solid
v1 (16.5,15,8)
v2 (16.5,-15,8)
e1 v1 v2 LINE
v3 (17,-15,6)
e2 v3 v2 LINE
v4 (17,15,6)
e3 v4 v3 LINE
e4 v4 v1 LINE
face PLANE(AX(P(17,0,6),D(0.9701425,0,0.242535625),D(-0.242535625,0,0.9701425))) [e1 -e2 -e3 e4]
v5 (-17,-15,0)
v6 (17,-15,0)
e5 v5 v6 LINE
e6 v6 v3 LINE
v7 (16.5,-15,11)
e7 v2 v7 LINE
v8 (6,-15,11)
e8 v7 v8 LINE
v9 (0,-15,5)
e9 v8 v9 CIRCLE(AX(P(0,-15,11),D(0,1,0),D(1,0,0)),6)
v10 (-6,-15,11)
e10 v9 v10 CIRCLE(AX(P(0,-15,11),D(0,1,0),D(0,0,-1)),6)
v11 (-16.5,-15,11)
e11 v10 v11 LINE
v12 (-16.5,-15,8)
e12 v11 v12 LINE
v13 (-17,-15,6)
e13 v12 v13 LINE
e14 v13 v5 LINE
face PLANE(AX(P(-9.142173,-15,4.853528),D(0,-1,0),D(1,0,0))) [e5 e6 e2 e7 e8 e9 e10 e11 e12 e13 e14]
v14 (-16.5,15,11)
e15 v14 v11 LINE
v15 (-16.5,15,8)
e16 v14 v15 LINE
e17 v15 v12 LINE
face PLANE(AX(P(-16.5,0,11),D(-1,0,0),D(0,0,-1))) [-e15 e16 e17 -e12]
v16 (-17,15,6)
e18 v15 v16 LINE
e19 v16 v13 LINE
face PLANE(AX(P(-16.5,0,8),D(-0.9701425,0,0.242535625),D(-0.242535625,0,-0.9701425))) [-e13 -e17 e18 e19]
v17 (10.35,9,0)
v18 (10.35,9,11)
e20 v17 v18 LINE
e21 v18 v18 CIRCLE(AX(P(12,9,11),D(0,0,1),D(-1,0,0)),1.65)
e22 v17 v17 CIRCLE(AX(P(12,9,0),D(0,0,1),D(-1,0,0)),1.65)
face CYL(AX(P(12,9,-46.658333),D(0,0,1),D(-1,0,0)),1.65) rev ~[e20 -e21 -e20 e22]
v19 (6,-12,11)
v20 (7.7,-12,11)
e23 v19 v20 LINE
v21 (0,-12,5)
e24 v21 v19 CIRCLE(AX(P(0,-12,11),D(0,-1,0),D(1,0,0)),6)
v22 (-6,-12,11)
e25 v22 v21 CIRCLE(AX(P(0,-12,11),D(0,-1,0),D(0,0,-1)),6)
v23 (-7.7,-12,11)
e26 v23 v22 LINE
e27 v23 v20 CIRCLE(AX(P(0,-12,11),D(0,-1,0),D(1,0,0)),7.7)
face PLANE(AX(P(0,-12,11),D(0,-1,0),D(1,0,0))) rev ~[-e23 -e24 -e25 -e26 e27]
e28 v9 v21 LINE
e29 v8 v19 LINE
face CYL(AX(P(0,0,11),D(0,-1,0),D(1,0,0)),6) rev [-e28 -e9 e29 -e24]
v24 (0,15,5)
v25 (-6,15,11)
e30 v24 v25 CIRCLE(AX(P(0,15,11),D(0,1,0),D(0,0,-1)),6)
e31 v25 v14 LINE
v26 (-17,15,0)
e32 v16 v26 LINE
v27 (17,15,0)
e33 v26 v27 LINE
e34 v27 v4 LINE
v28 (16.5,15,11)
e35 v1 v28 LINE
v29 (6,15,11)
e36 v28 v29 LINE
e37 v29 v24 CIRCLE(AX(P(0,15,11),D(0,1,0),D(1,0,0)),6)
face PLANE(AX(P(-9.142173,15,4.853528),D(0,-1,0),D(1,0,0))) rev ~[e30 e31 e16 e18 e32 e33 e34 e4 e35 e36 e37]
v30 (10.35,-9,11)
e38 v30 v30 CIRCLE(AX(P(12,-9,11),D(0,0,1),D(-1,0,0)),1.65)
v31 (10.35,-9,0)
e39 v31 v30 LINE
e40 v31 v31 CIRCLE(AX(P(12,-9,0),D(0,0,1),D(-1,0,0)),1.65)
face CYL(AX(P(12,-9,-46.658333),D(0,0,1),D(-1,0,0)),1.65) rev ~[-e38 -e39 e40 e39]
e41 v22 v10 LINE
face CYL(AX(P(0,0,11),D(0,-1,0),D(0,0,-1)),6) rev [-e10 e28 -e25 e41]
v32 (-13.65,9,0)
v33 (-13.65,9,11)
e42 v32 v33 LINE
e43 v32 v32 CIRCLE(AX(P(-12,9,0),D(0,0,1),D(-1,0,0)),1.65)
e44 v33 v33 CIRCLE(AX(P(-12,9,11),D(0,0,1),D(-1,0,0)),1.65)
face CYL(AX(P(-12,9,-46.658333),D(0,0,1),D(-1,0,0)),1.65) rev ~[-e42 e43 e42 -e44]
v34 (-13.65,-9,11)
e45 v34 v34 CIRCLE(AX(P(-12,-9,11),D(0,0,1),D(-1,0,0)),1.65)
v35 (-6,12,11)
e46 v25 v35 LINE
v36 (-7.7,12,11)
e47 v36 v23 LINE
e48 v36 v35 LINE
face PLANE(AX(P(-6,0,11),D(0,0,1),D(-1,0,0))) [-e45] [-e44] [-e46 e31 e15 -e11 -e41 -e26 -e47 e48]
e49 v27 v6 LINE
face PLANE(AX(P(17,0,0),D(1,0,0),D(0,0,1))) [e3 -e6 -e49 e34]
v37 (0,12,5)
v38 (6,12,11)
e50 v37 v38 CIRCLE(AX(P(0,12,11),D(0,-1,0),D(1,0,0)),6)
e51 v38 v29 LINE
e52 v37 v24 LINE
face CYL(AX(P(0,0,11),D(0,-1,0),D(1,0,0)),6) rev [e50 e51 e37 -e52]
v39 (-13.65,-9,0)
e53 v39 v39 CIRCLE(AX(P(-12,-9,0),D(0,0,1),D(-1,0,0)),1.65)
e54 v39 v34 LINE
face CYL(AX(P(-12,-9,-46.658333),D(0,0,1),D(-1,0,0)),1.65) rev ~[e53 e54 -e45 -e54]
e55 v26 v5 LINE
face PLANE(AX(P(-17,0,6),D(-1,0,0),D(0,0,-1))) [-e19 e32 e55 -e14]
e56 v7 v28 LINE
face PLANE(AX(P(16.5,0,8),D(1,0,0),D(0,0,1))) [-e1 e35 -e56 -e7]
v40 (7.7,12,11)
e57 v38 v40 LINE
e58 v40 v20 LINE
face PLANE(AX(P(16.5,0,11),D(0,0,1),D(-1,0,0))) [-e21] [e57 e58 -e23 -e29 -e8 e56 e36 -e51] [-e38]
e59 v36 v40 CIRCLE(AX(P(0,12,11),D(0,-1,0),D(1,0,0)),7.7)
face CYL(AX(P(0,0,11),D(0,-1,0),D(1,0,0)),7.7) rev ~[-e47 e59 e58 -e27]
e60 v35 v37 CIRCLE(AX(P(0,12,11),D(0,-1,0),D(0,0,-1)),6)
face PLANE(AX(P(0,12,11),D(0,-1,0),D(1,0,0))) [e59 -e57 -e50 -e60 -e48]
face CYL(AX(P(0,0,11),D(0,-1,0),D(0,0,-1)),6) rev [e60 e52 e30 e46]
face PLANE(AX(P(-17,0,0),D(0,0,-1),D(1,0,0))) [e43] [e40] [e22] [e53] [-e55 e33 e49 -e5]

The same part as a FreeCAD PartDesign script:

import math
import FreeCAD as App
import Part
import Sketcher
Q = App.Units.Quantity

doc = App.newDocument("Part")
body = doc.addObject("PartDesign::Body", "Body")

# Sketch on XZ plane
sketch1 = body.newObject("Sketcher::SketchObject", "Sketch")
sketch1.AttachmentSupport = (doc.getObject("XZ_Plane"), [""])
sketch1.MapMode = "FlatFace"
sketch1.addGeometry([
    Part.ArcOfCircle(Part.Circle(App.Vector(0, 11, 0), App.Vector(0, 0, 1), 6), math.radians(180), math.radians(270)),  # 0
    Part.LineSegment(App.Vector(-6, 11, 0), App.Vector(-16.5, 11, 0)),  # 1
    Part.LineSegment(App.Vector(-16.5, 11, 0), App.Vector(-16.5, 8, 0)),  # 2
    Part.LineSegment(App.Vector(-16.5, 8, 0), App.Vector(-17, 6, 0)),  # 3
    Part.LineSegment(App.Vector(-17, 6, 0), App.Vector(-17, 0, 0)),  # 4
    Part.LineSegment(App.Vector(-17, 0, 0), App.Vector(17, 0, 0)),  # 5
    Part.LineSegment(App.Vector(17, 0, 0), App.Vector(17, 6, 0)),  # 6
    Part.LineSegment(App.Vector(17, 6, 0), App.Vector(16.5, 8, 0)),  # 7
    Part.LineSegment(App.Vector(16.5, 8, 0), App.Vector(16.5, 11, 0)),  # 8
    Part.LineSegment(App.Vector(16.5, 11, 0), App.Vector(6, 11, 0)),  # 9
    Part.ArcOfCircle(Part.Circle(App.Vector(0, 11, 0), App.Vector(0, 0, 1), 6), math.radians(-90), math.radians(0)),  # 10
], False)
sketch1.addConstraint([
    Sketcher.Constraint("Coincident", 0, 1, 1, 1),
    Sketcher.Constraint("Coincident", 1, 2, 2, 1),
    Sketcher.Constraint("Coincident", 2, 2, 3, 1),
    Sketcher.Constraint("Coincident", 3, 2, 4, 1),
    Sketcher.Constraint("Coincident", 4, 2, 5, 1),
    Sketcher.Constraint("Coincident", 5, 2, 6, 1),
    Sketcher.Constraint("Coincident", 6, 2, 7, 1),
    Sketcher.Constraint("Coincident", 7, 2, 8, 1),
    Sketcher.Constraint("Coincident", 8, 2, 9, 1),
    Sketcher.Constraint("Coincident", 9, 2, 10, 2),
    Sketcher.Constraint("Tangent", 10, 1, 0, 2),
    Sketcher.Constraint("Horizontal", 1),
    Sketcher.Constraint("Vertical", 2),
    Sketcher.Constraint("Vertical", 4),
    Sketcher.Constraint("Horizontal", 5),
    Sketcher.Constraint("Vertical", 6),
    Sketcher.Constraint("Vertical", 8),
    Sketcher.Constraint("Horizontal", 9),
    Sketcher.Constraint("Equal", 0, 10),
    Sketcher.Constraint("Symmetric", 4, 2, 5, 2, -1, 1),
    Sketcher.Constraint("Symmetric", 2, 2, 7, 2, -2),
    Sketcher.Constraint("Symmetric", 0, 1, 9, 2, -2),
    Sketcher.Constraint("PointOnObject", 10, 1, -2),
    Sketcher.Constraint("Horizontal", 10, 3, 0, 1),
    Sketcher.Constraint("Horizontal", 3, 2, 6, 2),
    Sketcher.Constraint("Radius", 0, Q("6 mm")),
    Sketcher.Constraint("DistanceX", 5, 1, 5, 2, Q("34 mm")),
    Sketcher.Constraint("DistanceY", 2, 2, 2, 1, Q("3 mm")),
    Sketcher.Constraint("DistanceY", 4, 2, 4, 1, Q("6 mm")),
    Sketcher.Constraint("DistanceX", 1, 2, 1, 1, Q("10.5 mm")),
    Sketcher.Constraint("DistanceY", -1, 1, 0, 3, Q("11 mm")),
])
pad1 = body.newObject("PartDesign::Pad", "Pad")
pad1.Profile = sketch1
pad1.Length = 30
pad1.Midplane = True

# Sketch on XY plane
sketch2 = body.newObject("Sketcher::SketchObject", "Sketch001")
sketch2.AttachmentSupport = (doc.getObject("XY_Plane"), [""])
sketch2.MapMode = "FlatFace"
sketch2.addGeometry([
    Part.Circle(App.Vector(-12, -9, 0), App.Vector(0, 0, 1), 1.65),
    Part.Circle(App.Vector(-12, 9, 0), App.Vector(0, 0, 1), 1.65),
    Part.Circle(App.Vector(12, 9, 0), App.Vector(0, 0, 1), 1.65),
    Part.Circle(App.Vector(12, -9, 0), App.Vector(0, 0, 1), 1.65),
], False)
sketch2.addConstraint([
    Sketcher.Constraint("Equal", 0, 1),
    Sketcher.Constraint("Equal", 1, 2),
    Sketcher.Constraint("Equal", 2, 3),
    Sketcher.Constraint("Symmetric", 0, 3, 2, 3, -1, 1),
    Sketcher.Constraint("Symmetric", 1, 3, 3, 3, -1, 1),
    Sketcher.Constraint("Symmetric", 1, 3, 2, 3, -2),
    Sketcher.Constraint("Diameter", 0, Q("3.3 mm")),
    Sketcher.Constraint("DistanceX", 0, 3, -1, 1, Q("12 mm")),
    Sketcher.Constraint("DistanceY", 0, 3, -1, 1, Q("9 mm")),
])
doc.recompute()
hole = body.newObject("PartDesign::Hole", "Hole")
hole.Profile = sketch2
hole.ThreadType = "None"
hole.Diameter = 3.3
hole.DepthType = "ThroughAll"
hole.Reversed = True

# Sketch on XZ plane
sketch3 = body.newObject("Sketcher::SketchObject", "Sketch002")
sketch3.AttachmentSupport = (doc.getObject("XZ_Plane"), [""])
sketch3.MapMode = "FlatFace"
sketch3.addGeometry(Part.Circle(App.Vector(0, 11, 0), App.Vector(0, 0, 1), 7.7), False)
sketch3.addConstraint([
    Sketcher.Constraint("PointOnObject", 0, 3, -2),
    Sketcher.Constraint("Diameter", 0, Q("15.4 mm")),
    Sketcher.Constraint("DistanceY", -1, 1, 0, 3, Q("11 mm")),
])
pocket1 = body.newObject("PartDesign::Pocket", "Pocket")
pocket1.Profile = sketch3
pocket1.Length = 24
pocket1.Midplane = True

doc.recompute()
